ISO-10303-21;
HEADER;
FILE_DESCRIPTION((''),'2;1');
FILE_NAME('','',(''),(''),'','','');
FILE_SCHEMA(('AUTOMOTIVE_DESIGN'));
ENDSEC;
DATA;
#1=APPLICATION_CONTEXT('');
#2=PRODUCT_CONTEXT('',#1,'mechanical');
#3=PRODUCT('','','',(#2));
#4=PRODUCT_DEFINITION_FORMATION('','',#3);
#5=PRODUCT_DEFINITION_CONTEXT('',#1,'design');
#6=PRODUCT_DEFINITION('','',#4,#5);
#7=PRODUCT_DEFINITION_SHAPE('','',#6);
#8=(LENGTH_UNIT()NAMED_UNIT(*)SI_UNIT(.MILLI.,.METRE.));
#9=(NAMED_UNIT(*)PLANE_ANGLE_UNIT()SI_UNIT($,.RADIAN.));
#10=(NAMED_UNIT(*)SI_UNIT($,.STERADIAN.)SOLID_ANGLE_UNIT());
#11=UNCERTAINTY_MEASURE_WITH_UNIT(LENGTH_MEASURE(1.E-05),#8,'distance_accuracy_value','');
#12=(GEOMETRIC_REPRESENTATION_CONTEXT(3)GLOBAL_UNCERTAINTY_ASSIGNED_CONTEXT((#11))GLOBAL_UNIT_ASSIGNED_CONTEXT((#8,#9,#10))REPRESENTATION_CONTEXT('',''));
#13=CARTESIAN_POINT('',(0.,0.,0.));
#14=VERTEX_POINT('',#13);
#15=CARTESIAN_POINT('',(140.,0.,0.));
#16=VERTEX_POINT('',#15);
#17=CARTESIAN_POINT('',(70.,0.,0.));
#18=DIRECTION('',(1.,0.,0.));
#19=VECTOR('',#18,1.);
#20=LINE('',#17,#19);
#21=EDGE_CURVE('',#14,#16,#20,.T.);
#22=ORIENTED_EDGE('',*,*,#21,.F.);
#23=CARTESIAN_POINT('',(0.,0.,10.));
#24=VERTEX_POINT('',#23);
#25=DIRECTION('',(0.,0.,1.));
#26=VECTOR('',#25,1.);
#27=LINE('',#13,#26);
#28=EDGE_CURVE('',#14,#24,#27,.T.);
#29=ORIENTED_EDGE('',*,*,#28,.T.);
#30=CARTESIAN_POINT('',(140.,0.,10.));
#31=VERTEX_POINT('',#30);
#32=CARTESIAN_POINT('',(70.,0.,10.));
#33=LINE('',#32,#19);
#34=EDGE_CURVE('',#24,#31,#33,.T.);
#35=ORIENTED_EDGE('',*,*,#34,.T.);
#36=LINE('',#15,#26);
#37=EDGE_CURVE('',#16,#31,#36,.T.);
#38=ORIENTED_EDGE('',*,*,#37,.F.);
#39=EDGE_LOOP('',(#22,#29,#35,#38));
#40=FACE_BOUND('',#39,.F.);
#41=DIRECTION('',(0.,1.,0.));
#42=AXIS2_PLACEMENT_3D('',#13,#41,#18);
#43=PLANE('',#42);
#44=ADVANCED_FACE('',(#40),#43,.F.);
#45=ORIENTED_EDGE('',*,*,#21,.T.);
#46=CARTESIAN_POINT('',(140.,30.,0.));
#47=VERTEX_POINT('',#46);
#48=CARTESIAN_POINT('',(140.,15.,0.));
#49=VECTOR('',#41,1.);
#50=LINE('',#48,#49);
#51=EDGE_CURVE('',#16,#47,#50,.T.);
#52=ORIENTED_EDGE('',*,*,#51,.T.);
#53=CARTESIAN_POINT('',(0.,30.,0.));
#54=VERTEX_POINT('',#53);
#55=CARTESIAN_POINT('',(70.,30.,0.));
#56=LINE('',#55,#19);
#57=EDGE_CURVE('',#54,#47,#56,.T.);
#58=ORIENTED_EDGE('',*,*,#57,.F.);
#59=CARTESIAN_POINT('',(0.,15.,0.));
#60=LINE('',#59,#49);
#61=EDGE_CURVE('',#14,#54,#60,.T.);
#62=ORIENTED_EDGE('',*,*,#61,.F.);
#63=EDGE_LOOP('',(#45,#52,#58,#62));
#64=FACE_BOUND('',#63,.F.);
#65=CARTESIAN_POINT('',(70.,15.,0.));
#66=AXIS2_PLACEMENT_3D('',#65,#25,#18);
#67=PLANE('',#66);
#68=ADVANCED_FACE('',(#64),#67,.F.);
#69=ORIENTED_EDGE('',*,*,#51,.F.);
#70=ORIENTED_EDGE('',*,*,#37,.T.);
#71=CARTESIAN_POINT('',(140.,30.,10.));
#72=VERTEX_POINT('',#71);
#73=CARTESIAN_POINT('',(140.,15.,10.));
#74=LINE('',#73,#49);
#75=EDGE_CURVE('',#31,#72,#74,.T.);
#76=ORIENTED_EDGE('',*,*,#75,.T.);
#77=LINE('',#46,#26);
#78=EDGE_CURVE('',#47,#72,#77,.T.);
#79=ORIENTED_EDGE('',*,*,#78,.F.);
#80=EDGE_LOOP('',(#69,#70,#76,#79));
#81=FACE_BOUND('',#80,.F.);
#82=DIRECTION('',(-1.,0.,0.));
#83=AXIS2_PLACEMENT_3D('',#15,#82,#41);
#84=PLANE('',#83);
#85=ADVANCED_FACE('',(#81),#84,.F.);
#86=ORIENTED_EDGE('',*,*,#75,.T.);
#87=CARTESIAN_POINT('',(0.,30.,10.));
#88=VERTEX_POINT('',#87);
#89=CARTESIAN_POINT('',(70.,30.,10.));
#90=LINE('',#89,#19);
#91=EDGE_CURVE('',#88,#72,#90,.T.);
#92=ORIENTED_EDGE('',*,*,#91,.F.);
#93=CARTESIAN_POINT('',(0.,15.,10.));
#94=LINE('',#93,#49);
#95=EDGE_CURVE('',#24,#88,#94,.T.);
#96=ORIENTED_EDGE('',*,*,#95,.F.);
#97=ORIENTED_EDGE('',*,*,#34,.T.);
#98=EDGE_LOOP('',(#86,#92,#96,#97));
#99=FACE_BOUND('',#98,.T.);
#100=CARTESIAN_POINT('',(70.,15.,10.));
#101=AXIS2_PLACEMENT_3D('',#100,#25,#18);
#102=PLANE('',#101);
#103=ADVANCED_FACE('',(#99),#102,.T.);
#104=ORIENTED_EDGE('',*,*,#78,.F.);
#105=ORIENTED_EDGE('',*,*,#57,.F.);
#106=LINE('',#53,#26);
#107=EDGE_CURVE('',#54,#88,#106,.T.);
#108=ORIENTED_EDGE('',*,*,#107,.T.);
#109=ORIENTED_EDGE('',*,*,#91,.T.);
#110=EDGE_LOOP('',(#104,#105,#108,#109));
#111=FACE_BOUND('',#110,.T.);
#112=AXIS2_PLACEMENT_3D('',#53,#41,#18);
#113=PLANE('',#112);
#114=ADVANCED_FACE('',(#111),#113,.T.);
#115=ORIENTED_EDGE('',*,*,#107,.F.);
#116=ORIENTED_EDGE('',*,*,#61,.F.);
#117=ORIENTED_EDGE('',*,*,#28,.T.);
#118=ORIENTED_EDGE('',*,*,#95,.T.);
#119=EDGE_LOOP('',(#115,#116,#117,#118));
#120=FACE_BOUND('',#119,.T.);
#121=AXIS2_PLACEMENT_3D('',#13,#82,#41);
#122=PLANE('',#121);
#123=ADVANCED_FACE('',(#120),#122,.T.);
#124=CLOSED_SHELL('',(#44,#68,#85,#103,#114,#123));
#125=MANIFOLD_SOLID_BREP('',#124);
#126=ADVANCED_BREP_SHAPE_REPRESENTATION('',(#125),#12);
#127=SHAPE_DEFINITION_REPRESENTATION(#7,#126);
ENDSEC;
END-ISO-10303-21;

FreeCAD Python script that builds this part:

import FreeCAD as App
import Part
import Sketcher


def add_polygon(sketch, points):
    """Adds a closed chain of lines whose ends are joined by coincident constraints."""
    first, n = sketch.GeometryCount, len(points)
    for a, b in zip(points, points[1:] + points[:1]):
        sketch.addGeometry(Part.LineSegment(App.Vector(*a, 0), App.Vector(*b, 0)), False)
    for i in range(n):
        sketch.addConstraint(Sketcher.Constraint("Coincident", first + i, 2, first + (i + 1) % n, 1))

doc = App.newDocument("Part")
params = doc.addObject("Spreadsheet::Sheet", "Params")
for row, (alias, value) in enumerate([
    ("sketch1_width", "140 mm"),
    ("sketch1_height", "30 mm"),
    ("pad1_length", "10 mm"),
], start=1):
    params.set(f"A{row}", alias)
    params.set(f"B{row}", "=" + value)
    params.setAlias(f"B{row}", alias)

body = doc.addObject("PartDesign::Body", "Body")

sketch1 = body.newObject("Sketcher::SketchObject", "Sketch")
sketch1.AttachmentSupport = (doc.getObject("XY_Plane"), [""])
sketch1.MapMode = "FlatFace"
add_polygon(sketch1, [(0, 30), (0, 0), (140, 0), (140, 30)])
sketch1.addConstraint([
    Sketcher.Constraint("Vertical", 0),
    Sketcher.Constraint("Horizontal", 1),
    Sketcher.Constraint("Vertical", 2),
    Sketcher.Constraint("Horizontal", 3),
    Sketcher.Constraint("Coincident", 0, 2, -1, 1),
    Sketcher.Constraint("DistanceX", 1, 1, 1, 2, 140.0),
    Sketcher.Constraint("DistanceY", 0, 2, 0, 1, 30.0),
])
sketch1.setExpression("Constraints[9]", "Params.sketch1_width")
sketch1.setExpression("Constraints[10]", "Params.sketch1_height")
pad1 = body.newObject("PartDesign::Pad", "Pad")
pad1.Profile = sketch1
pad1.setExpression("Length", "Params.pad1_length")

doc.recompute()
